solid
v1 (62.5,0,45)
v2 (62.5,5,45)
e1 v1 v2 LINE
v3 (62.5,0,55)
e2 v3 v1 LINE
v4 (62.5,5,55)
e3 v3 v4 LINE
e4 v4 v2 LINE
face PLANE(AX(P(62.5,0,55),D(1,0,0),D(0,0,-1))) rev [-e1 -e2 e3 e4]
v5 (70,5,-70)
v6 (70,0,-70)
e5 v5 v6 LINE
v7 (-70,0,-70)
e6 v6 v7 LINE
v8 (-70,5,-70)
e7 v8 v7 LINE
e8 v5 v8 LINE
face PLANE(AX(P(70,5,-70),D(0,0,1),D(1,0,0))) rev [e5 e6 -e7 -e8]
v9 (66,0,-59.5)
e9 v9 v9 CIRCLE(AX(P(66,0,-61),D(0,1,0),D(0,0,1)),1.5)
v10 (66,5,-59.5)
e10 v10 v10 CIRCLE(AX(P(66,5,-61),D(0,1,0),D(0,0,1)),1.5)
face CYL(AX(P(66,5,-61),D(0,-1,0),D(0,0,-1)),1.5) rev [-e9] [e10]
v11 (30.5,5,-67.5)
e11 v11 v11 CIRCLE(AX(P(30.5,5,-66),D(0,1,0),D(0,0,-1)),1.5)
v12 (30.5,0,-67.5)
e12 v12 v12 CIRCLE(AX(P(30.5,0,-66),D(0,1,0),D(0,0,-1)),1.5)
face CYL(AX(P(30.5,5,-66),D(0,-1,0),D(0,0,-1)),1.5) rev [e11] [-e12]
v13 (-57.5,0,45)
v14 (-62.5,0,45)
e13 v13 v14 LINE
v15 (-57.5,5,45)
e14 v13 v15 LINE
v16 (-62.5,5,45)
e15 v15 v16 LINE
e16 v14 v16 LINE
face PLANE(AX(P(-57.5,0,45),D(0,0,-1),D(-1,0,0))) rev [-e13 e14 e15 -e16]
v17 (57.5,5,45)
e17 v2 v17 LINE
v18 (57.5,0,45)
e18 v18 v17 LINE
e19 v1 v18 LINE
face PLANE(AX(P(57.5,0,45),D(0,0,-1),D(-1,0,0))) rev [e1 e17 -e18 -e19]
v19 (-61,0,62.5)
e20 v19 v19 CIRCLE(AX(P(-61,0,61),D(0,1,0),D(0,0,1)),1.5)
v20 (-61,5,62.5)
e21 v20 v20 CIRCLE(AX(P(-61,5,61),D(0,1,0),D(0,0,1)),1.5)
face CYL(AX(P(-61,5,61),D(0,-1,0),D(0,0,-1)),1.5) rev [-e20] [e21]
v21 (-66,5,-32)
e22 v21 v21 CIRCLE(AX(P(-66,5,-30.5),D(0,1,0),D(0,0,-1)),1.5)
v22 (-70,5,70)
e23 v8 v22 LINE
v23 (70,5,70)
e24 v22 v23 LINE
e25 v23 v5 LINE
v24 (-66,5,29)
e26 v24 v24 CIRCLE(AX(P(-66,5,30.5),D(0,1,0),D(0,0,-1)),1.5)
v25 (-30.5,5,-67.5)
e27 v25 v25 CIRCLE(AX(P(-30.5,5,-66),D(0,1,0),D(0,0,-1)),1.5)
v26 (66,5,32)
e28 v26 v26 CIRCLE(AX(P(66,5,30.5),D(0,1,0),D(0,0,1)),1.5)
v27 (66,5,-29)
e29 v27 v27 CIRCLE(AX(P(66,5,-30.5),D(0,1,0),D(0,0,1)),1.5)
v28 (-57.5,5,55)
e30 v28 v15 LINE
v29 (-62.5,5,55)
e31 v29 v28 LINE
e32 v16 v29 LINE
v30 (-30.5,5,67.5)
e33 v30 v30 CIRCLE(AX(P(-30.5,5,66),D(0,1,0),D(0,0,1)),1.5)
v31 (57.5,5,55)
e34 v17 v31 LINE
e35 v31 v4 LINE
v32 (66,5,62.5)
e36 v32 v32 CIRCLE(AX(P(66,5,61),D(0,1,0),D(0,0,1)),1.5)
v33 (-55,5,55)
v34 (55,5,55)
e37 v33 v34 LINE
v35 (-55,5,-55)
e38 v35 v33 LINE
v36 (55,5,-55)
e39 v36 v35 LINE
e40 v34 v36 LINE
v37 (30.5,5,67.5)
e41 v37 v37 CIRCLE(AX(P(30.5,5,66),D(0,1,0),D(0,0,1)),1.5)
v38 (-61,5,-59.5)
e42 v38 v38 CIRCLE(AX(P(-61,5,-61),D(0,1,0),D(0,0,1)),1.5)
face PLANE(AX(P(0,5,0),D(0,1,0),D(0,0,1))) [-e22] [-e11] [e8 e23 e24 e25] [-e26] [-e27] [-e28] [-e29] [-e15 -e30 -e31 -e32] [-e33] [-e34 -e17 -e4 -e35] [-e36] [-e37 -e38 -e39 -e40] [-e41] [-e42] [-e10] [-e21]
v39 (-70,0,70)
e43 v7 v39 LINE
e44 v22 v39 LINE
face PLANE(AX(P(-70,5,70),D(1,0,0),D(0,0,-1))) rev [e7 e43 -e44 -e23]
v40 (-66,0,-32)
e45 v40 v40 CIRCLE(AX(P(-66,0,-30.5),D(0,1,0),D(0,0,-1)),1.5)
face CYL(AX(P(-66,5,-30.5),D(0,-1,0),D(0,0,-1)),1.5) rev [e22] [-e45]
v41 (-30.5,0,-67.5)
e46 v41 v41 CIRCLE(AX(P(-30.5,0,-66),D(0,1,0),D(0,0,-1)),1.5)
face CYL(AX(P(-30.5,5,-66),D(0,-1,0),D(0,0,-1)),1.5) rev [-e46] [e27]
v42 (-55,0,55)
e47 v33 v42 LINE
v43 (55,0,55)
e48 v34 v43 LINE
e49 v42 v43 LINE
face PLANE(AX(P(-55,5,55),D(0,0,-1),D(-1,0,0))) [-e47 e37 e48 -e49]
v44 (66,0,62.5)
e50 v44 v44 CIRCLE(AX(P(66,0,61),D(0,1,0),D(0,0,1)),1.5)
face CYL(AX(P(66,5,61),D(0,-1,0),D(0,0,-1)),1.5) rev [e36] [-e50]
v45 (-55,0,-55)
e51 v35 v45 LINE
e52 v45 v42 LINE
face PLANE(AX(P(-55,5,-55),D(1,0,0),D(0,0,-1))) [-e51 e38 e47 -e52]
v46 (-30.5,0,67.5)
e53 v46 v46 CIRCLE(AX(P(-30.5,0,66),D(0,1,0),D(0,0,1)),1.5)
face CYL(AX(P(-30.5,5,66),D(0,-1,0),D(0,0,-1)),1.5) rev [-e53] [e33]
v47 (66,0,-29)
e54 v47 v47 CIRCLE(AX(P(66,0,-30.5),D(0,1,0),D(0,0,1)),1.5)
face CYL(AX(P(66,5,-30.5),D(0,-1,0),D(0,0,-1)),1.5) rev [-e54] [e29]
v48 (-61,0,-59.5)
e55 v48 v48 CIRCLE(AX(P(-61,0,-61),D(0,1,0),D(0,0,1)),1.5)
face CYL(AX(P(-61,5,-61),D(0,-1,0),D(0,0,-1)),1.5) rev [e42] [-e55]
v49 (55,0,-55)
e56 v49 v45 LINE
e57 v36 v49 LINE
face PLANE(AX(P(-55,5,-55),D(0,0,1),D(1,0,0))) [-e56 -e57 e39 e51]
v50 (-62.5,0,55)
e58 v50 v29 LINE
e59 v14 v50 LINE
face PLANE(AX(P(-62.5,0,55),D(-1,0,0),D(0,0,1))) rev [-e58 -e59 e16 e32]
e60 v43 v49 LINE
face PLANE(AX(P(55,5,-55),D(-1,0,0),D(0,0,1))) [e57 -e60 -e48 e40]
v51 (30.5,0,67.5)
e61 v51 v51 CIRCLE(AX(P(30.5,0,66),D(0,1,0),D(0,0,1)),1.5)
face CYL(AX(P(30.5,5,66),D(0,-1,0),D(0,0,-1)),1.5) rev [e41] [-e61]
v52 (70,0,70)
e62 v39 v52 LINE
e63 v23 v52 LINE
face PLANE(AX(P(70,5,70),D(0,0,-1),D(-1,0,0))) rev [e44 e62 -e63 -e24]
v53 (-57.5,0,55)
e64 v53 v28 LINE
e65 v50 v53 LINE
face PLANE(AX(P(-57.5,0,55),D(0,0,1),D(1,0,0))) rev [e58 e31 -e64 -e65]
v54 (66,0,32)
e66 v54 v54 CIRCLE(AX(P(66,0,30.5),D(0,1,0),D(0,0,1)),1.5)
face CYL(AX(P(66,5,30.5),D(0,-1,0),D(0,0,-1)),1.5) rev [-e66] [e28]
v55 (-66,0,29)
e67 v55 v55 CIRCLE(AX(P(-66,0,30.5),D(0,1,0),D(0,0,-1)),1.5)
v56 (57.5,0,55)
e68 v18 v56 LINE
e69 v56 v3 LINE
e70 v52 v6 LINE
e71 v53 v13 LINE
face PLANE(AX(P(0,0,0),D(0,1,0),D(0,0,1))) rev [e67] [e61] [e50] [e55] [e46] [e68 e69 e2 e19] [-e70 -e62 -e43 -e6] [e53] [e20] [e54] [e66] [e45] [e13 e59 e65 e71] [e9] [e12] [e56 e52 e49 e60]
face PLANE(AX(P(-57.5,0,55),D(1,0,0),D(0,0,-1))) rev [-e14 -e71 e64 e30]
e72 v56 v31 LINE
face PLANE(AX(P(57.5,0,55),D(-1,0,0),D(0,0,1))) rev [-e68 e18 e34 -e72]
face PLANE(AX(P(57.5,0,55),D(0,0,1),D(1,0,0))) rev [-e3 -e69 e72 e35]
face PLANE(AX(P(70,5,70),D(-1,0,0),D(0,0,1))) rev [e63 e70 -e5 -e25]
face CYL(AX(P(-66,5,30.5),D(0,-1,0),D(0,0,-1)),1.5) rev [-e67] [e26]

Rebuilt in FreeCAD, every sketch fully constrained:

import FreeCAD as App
import Part
import Sketcher
from FreeCAD import Vector
Q = App.Units.Quantity


def add_polygon(sketch, points):
    """Adds a closed chain of lines whose ends are joined by coincident constraints."""
    first, n = sketch.GeometryCount, len(points)
    for a, b in zip(points, points[1:] + points[:1]):
        sketch.addGeometry(Part.LineSegment(App.Vector(*a, 0), App.Vector(*b, 0)), False)
    for i in range(n):
        sketch.addConstraint(Sketcher.Constraint("Coincident", first + i, 2, first + (i + 1) % n, 1))

doc = App.newDocument("Part")
body = doc.addObject("PartDesign::Body", "Body")

# Sketch on XZ plane
sketch1 = body.newObject("Sketcher::SketchObject", "Sketch")
sketch1.AttachmentSupport = (doc.getObject("XZ_Plane"), [""])
sketch1.MapMode = "FlatFace"
add_polygon(sketch1, [(-70, -70), (-70, 70), (70, 70), (70, -70)])  # lines 0-3
sketch1.addGeometry(Part.Circle(Vector(-61, 61, 0), Vector(0, 0, 1), 1.5), False)  # 4
sketch1.addGeometry(Part.Circle(Vector(-30.5, 66, 0), Vector(0, 0, 1), 1.5), False)  # 5
sketch1.addGeometry(Part.Circle(Vector(-66, 30.5, 0), Vector(0, 0, 1), 1.5), False)  # 6
sketch1.addGeometry(Part.Circle(Vector(30.5, 66, 0), Vector(0, 0, 1), 1.5), False)  # 7
sketch1.addGeometry(Part.Circle(Vector(66, 61, 0), Vector(0, 0, 1), 1.5), False)  # 8
sketch1.addGeometry(Part.Circle(Vector(66, 30.5, 0), Vector(0, 0, 1), 1.5), False)  # 9
sketch1.addGeometry(Part.Circle(Vector(-66, -30.5, 0), Vector(0, 0, 1), 1.5), False)  # 10
sketch1.addGeometry(Part.Circle(Vector(-61, -61, 0), Vector(0, 0, 1), 1.5), False)  # 11
sketch1.addGeometry(Part.Circle(Vector(-30.5, -66, 0), Vector(0, 0, 1), 1.5), False)  # 12
add_polygon(sketch1, [(55, 55), (-55, 55), (-55, -55), (55, -55)])  # lines 13-16
sketch1.addGeometry(Part.Circle(Vector(66, -30.5, 0), Vector(0, 0, 1), 1.5), False)  # 17
sketch1.addGeometry(Part.Circle(Vector(30.5, -66, 0), Vector(0, 0, 1), 1.5), False)  # 18
sketch1.addGeometry(Part.Circle(Vector(66, -61, 0), Vector(0, 0, 1), 1.5), False)  # 19
sketch1.addConstraint([
    Sketcher.Constraint("Vertical", 0),
    Sketcher.Constraint("Horizontal", 1),
    Sketcher.Constraint("Vertical", 2),
    Sketcher.Constraint("Horizontal", 3),
    Sketcher.Constraint("Horizontal", 13),
    Sketcher.Constraint("Vertical", 14),
    Sketcher.Constraint("Horizontal", 15),
    Sketcher.Constraint("Vertical", 16),
    Sketcher.Constraint("Equal", 4, 5),
    Sketcher.Constraint("Equal", 5, 6),
    Sketcher.Constraint("Equal", 6, 7),
    Sketcher.Constraint("Equal", 7, 8),
    Sketcher.Constraint("Equal", 8, 9),
    Sketcher.Constraint("Equal", 9, 10),
    Sketcher.Constraint("Equal", 10, 11),
    Sketcher.Constraint("Equal", 11, 12),
    Sketcher.Constraint("Equal", 12, 17),
    Sketcher.Constraint("Equal", 17, 18),
    Sketcher.Constraint("Equal", 18, 19),
    Sketcher.Constraint("Symmetric", 9, 3, 10, 3, -1, 1),
    Sketcher.Constraint("Symmetric", 7, 3, 12, 3, -1, 1),
    Sketcher.Constraint("Symmetric", 6, 3, 17, 3, -1, 1),
    Sketcher.Constraint("Symmetric", 5, 3, 18, 3, -1, 1),
    Sketcher.Constraint("Symmetric", 0, 2, 2, 2, -1, 1),
    Sketcher.Constraint("Symmetric", 13, 2, 15, 2, -1, 1),
    Sketcher.Constraint("Symmetric", 5, 3, 7, 3, -2),
    Sketcher.Constraint("Symmetric", 6, 3, 9, 3, -2),
    Sketcher.Constraint("Symmetric", 4, 3, 11, 3, -1),
    Sketcher.Constraint("Symmetric", 8, 3, 19, 3, -1),
    Sketcher.Constraint("Horizontal", 4, 3, 8, 3),
    Sketcher.Constraint("Vertical", 8, 3, 9, 3),
    Sketcher.Constraint("Equal", 3, 0),
    Sketcher.Constraint("Equal", 15, 14),
    Sketcher.Constraint("Diameter", 4, Q("3 mm")),
    Sketcher.Constraint("DistanceX", 1, 1, 1, 2, Q("140 mm")),
    Sketcher.Constraint("DistanceX", 13, 2, 13, 1, Q("110 mm")),
    Sketcher.Constraint("DistanceX", 4, 3, -1, 1, Q("61 mm")),
    Sketcher.Constraint("DistanceY", -1, 1, 4, 3, Q("61 mm")),
    Sketcher.Constraint("DistanceY", -1, 1, 5, 3, Q("66 mm")),
    Sketcher.Constraint("DistanceX", 6, 3, -1, 1, Q("66 mm")),
    Sketcher.Constraint("DistanceX", 5, 3, 7, 3, Q("61 mm")),
    Sketcher.Constraint("DistanceY", 10, 3, 6, 3, Q("61 mm")),
])
pad1 = body.newObject("PartDesign::Pad", "Pad")
pad1.Profile = sketch1
pad1.Length = 5
pad1.Reversed = True

# Sketch on XZ plane
sketch2 = body.newObject("Sketcher::SketchObject", "Sketch001")
sketch2.AttachmentSupport = (doc.getObject("XZ_Plane"), [""])
sketch2.MapMode = "FlatFace"
sketch2.AttachmentOffset = App.Placement(Vector(0, 0, -5), App.Rotation())
add_polygon(sketch2, [(58, 45), (58, 55), (62, 55), (62, 45)])  # lines 0-3
add_polygon(sketch2, [(-62, 45), (-62, 55), (-58, 55), (-58, 45)])  # lines 4-7
sketch2.addConstraint([
    Sketcher.Constraint("Vertical", 0),
    Sketcher.Constraint("Horizontal", 1),
    Sketcher.Constraint("Vertical", 2),
    Sketcher.Constraint("Horizontal", 3),
    Sketcher.Constraint("Vertical", 4),
    Sketcher.Constraint("Horizontal", 5),
    Sketcher.Constraint("Vertical", 6),
    Sketcher.Constraint("Horizontal", 7),
    Sketcher.Constraint("Symmetric", 1, 2, 4, 2, -2),
    Sketcher.Constraint("Symmetric", 3, 2, 6, 2, -2),
    Sketcher.Constraint("DistanceX", 1, 1, 1, 2, Q("5 mm")),
    Sketcher.Constraint("DistanceY", 0, 1, 0, 2, Q("10 mm")),
    Sketcher.Constraint("DistanceY", -1, 1, 0, 2, Q("55 mm")),
    Sketcher.Constraint("DistanceX", 4, 2, 0, 2, Q("120 mm")),
])
pocket1 = body.newObject("PartDesign::Pocket", "Pocket")
pocket1.Profile = sketch2
pocket1.Length = 5
pocket1.Reversed = True

doc.recompute()
